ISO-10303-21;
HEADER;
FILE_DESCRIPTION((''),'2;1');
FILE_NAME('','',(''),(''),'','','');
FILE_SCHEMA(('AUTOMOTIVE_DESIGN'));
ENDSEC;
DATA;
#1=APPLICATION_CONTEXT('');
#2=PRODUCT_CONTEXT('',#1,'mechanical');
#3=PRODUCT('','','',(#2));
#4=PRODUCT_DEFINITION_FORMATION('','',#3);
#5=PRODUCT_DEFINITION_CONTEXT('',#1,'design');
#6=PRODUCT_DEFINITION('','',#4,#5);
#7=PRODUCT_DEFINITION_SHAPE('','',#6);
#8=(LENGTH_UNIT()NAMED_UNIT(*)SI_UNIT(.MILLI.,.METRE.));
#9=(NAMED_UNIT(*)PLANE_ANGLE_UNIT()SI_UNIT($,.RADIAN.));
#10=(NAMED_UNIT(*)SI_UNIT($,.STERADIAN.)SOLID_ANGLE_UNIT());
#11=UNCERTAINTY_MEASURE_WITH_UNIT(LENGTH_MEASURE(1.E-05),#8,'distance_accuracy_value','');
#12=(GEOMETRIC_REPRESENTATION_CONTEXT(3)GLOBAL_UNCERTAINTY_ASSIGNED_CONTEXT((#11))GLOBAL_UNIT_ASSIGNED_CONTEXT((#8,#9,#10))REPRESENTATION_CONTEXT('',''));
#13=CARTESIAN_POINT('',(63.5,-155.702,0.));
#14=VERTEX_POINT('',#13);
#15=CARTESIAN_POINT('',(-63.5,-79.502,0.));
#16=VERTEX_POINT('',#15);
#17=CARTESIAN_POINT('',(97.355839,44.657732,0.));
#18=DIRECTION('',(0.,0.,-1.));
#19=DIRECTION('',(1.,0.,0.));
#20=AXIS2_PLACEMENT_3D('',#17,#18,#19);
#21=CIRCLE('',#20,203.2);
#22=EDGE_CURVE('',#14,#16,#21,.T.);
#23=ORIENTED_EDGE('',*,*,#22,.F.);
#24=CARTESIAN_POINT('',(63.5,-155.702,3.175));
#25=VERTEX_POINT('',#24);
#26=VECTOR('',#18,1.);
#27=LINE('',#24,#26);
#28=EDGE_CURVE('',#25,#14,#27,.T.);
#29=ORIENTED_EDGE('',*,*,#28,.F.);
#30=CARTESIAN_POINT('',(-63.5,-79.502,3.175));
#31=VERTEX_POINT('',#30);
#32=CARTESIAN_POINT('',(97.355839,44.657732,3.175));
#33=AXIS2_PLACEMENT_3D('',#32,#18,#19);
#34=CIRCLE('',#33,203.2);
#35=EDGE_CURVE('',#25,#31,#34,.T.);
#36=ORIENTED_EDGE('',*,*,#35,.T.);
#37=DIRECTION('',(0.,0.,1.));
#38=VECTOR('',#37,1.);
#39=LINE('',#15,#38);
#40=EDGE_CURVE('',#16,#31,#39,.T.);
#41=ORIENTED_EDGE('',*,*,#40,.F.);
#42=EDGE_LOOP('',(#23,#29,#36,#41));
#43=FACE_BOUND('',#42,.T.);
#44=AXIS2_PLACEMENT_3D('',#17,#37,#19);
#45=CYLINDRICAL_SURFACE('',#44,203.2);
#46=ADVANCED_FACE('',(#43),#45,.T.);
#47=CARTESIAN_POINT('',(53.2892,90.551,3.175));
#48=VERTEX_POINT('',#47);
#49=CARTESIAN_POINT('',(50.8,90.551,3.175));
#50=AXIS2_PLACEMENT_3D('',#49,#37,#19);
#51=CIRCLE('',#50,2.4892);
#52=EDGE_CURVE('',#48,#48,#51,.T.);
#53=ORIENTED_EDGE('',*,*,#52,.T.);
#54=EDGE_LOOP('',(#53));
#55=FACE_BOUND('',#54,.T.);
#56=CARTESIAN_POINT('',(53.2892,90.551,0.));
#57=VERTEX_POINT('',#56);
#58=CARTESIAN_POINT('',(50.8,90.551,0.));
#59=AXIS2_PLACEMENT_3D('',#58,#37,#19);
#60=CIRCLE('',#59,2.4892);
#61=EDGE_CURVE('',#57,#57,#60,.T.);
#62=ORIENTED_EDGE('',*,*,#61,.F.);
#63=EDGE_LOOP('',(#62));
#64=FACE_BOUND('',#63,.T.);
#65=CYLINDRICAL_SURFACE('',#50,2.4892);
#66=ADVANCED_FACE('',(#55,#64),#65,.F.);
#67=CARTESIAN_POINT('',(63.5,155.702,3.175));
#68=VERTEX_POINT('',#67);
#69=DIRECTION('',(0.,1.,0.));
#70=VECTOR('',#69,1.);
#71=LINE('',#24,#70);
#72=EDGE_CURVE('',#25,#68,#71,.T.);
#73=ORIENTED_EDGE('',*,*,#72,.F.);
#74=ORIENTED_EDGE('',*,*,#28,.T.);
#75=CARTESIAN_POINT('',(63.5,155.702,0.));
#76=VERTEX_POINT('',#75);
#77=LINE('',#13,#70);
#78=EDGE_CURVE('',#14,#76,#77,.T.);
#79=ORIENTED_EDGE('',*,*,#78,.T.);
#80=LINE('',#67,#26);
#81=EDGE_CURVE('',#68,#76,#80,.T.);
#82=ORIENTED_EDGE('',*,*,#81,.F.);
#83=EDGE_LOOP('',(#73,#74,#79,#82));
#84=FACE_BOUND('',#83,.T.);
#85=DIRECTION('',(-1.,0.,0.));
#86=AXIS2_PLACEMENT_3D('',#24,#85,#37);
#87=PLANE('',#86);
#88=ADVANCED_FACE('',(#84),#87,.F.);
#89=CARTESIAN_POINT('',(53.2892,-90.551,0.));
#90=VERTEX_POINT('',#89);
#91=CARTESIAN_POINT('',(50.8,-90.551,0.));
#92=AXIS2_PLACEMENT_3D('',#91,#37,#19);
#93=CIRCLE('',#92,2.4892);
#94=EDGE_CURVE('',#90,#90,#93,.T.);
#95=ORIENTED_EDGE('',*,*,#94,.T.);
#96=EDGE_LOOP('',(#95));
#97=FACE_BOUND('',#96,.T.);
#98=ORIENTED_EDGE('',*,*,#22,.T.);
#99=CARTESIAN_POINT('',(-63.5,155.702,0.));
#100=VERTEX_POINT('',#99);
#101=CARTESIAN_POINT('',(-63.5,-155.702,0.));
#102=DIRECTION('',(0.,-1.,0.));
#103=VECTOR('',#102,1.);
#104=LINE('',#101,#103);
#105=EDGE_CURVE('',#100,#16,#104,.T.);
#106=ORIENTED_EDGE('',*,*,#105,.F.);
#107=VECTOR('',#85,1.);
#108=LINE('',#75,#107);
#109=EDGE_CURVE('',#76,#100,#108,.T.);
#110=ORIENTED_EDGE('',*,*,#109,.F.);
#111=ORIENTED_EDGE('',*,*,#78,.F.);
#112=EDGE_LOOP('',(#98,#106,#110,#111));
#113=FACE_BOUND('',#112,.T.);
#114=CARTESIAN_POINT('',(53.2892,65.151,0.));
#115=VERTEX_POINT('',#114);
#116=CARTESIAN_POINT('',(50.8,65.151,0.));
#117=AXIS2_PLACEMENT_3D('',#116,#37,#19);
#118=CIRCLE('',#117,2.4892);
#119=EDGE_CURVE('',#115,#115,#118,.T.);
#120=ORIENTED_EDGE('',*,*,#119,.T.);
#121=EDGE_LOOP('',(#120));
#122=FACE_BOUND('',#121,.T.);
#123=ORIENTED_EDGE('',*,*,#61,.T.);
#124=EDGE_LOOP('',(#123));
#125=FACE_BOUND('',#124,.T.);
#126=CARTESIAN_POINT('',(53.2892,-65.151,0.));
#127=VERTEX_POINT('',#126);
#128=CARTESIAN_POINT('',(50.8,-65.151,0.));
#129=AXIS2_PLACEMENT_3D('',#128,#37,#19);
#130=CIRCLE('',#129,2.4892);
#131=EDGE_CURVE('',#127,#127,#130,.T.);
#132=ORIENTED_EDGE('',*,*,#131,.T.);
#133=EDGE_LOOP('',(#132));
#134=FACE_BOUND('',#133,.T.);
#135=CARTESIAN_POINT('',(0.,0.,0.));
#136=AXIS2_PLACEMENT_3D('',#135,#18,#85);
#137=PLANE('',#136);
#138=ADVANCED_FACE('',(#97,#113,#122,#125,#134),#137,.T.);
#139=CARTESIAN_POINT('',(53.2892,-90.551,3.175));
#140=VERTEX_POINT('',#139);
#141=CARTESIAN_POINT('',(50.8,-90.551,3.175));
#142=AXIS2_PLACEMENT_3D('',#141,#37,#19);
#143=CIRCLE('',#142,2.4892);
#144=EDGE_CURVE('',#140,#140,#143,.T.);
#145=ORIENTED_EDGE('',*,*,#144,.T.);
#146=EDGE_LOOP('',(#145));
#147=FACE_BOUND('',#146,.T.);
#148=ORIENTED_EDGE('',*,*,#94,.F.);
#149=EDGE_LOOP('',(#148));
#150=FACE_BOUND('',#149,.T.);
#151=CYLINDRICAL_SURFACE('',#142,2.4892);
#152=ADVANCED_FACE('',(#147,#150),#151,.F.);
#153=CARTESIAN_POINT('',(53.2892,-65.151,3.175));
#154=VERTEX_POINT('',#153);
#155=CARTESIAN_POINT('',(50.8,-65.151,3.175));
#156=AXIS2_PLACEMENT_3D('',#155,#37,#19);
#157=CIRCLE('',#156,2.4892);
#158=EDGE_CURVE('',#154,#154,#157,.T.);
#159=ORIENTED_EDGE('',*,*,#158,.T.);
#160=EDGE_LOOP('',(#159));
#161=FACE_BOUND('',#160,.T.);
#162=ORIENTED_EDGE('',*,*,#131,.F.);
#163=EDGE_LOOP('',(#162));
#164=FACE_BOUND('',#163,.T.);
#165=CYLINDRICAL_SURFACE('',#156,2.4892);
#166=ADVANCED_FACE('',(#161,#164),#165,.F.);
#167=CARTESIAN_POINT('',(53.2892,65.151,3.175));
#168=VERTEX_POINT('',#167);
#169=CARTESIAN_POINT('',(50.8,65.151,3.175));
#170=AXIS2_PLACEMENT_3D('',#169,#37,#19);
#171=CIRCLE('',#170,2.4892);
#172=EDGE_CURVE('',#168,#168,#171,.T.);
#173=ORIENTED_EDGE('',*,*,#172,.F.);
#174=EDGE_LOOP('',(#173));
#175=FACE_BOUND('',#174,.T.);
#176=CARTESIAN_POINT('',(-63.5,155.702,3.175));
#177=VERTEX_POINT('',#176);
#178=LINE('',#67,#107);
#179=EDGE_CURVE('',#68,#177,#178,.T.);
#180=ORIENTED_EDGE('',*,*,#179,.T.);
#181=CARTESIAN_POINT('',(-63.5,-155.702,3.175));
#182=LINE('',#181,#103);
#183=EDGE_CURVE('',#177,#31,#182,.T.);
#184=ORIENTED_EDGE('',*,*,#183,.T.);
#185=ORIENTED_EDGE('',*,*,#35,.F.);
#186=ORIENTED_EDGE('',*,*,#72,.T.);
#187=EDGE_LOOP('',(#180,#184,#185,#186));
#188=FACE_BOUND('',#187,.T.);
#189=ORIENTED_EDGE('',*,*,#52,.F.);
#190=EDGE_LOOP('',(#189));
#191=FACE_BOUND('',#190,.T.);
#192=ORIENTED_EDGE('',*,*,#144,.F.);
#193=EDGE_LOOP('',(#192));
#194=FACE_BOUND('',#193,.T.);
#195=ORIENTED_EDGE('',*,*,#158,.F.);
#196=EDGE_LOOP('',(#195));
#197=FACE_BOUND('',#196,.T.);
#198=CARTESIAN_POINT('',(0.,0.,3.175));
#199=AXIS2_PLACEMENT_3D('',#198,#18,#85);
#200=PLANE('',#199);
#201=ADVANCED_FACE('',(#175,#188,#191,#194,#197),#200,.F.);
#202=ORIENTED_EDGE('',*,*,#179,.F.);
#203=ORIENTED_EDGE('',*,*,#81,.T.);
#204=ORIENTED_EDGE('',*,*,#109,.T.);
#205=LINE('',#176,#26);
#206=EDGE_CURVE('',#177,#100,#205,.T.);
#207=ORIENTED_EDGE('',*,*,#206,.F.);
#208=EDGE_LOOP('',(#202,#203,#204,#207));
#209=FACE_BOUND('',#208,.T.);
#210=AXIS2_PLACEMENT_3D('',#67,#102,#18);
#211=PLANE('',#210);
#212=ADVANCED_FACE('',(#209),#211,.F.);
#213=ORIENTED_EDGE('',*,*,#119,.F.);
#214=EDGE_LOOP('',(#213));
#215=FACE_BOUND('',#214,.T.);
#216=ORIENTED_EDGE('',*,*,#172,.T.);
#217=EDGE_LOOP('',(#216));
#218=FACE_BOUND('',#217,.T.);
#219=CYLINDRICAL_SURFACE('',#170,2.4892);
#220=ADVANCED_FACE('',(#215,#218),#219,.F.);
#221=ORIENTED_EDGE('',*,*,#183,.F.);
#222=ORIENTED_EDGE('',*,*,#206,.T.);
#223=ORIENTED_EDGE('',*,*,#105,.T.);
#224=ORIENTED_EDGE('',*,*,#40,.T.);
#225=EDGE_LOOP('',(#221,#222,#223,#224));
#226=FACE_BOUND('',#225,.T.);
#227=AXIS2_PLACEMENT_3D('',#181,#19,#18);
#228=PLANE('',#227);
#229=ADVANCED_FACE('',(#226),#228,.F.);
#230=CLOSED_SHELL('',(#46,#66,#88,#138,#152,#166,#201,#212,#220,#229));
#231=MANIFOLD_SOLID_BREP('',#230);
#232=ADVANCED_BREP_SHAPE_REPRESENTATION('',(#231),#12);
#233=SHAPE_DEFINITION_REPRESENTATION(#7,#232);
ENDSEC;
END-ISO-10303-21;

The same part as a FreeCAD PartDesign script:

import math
import FreeCAD as App
import Part
import Sketcher

V = App.Vector
Q = App.Units.Quantity


def add_polygon(sketch, points):
    """Adds a closed chain of lines whose ends are joined by coincident constraints."""
    first, n = sketch.GeometryCount, len(points)
    for a, b in zip(points, points[1:] + points[:1]):
        sketch.addGeometry(Part.LineSegment(App.Vector(*a, 0), App.Vector(*b, 0)), False)
    for i in range(n):
        sketch.addConstraint(Sketcher.Constraint("Coincident", first + i, 2, first + (i + 1) % n, 1))

doc = App.newDocument("Part")
body = doc.addObject("PartDesign::Body", "Body")

sketch1 = body.newObject("Sketcher::SketchObject", "Sketch")
sketch1.AttachmentSupport = (doc.getObject("XY_Plane"), [""])
sketch1.MapMode = "FlatFace"
add_polygon(sketch1, [(-64, -156), (64, -156), (64, 156), (-64, 156)])
sketch1.addConstraint(Sketcher.Constraint("Horizontal", 0))
sketch1.addConstraint(Sketcher.Constraint("Vertical", 1))
sketch1.addConstraint(Sketcher.Constraint("Horizontal", 2))
sketch1.addConstraint(Sketcher.Constraint("Vertical", 3))
sketch1.addConstraint(Sketcher.Constraint("Symmetric", 0, 2, 2, 2, -1, 1))
sketch1.addConstraint(Sketcher.Constraint("DistanceX", 0, 1, 0, 2, Q("5 in")))
sketch1.addConstraint(Sketcher.Constraint("DistanceY", 1, 1, 1, 2, Q("12.26 in")))
pad1 = body.newObject("PartDesign::Pad", "Pad")
pad1.Profile = sketch1
pad1.Length = Q("0.125 in")

sketch2 = body.newObject("Sketcher::SketchObject", "Sketch001")
sketch2.AttachmentSupport = (doc.getObject("XY_Plane"), [""])
sketch2.MapMode = "FlatFace"
sketch2.AttachmentOffset = App.Placement(V(0, 0, 0.125 * 25.4), App.Rotation())
sketch2.addGeometry(Part.Circle(V(50.8, 90.6, 0), V(0, 0, 1), 2.5), False)
sketch2.addGeometry(Part.Circle(V(50.8, -90.6, 0), V(0, 0, 1), 2.5), False)
sketch2.addGeometry(Part.Circle(V(50.8, -65.2, 0), V(0, 0, 1), 2.5), False)
sketch2.addGeometry(Part.Circle(V(50.8, 65.2, 0), V(0, 0, 1), 2.5), False)
sketch2.addConstraint(Sketcher.Constraint("Equal", 0, 1))
sketch2.addConstraint(Sketcher.Constraint("Equal", 1, 2))
sketch2.addConstraint(Sketcher.Constraint("Equal", 2, 3))
sketch2.addConstraint(Sketcher.Constraint("Symmetric", 0, 3, 1, 3, -1))
sketch2.addConstraint(Sketcher.Constraint("Symmetric", 2, 3, 3, 3, -1))
sketch2.addConstraint(Sketcher.Constraint("Vertical", 1, 3, 2, 3))
sketch2.addConstraint(Sketcher.Constraint("Diameter", 0, Q("0.196 in")))
sketch2.addConstraint(Sketcher.Constraint("DistanceX", -1, 1, 0, 3, Q("2 in")))
sketch2.addConstraint(Sketcher.Constraint("DistanceY", 1, 3, 2, 3, Q("1 in")))
sketch2.addConstraint(Sketcher.Constraint("DistanceY", 1, 3, 0, 3, Q("7.13 in")))
doc.recompute()
hole = body.newObject("PartDesign::Hole", "Hole")
hole.Profile = sketch2
hole.ThreadType = "None"
hole.Diameter = Q("0.196 in")
hole.DepthType = "ThroughAll"

sketch3 = body.newObject("Sketcher::SketchObject", "Sketch002")
sketch3.AttachmentSupport = (doc.getObject("XY_Plane"), [""])
sketch3.MapMode = "FlatFace"
sketch3.AttachmentOffset = App.Placement(V(0, 0, 0.125 * 25.4), App.Rotation())
sketch3.addGeometry(Part.LineSegment(V(-64, -80, 0), V(-64, -156, 0)), False)
sketch3.addGeometry(Part.LineSegment(V(-64, -156, 0), V(64, -156, 0)), False)
sketch3.addGeometry(Part.ArcOfCircle(Part.Circle(V(97, 45, 0), V(0, 0, 1), 203), math.radians(-142), math.radians(-100)), False)
sketch3.addConstraint(Sketcher.Constraint("Coincident", 0, 2, 1, 1))
sketch3.addConstraint(Sketcher.Constraint("Coincident", 1, 2, 2, 2))
sketch3.addConstraint(Sketcher.Constraint("Coincident", 2, 1, 0, 1))
sketch3.addConstraint(Sketcher.Constraint("Vertical", 0))
sketch3.addConstraint(Sketcher.Constraint("Horizontal", 1))
sketch3.addConstraint(Sketcher.Constraint("Radius", 2, Q("8 in")))
sketch3.addConstraint(Sketcher.Constraint("DistanceX", 1, 1, 1, 2, Q("5 in")))
sketch3.addConstraint(Sketcher.Constraint("DistanceY", 0, 2, 0, 1, Q("3 in")))
sketch3.addConstraint(Sketcher.Constraint("DistanceX", 0, 2, -1, 1, Q("2.5 in")))
sketch3.addConstraint(Sketcher.Constraint("DistanceY", 0, 2, -1, 1, Q("6.13 in")))
pocket1 = body.newObject("PartDesign::Pocket", "Pocket")
pocket1.Profile = sketch3
pocket1.Type = "ThroughAll"

doc.recompute()
